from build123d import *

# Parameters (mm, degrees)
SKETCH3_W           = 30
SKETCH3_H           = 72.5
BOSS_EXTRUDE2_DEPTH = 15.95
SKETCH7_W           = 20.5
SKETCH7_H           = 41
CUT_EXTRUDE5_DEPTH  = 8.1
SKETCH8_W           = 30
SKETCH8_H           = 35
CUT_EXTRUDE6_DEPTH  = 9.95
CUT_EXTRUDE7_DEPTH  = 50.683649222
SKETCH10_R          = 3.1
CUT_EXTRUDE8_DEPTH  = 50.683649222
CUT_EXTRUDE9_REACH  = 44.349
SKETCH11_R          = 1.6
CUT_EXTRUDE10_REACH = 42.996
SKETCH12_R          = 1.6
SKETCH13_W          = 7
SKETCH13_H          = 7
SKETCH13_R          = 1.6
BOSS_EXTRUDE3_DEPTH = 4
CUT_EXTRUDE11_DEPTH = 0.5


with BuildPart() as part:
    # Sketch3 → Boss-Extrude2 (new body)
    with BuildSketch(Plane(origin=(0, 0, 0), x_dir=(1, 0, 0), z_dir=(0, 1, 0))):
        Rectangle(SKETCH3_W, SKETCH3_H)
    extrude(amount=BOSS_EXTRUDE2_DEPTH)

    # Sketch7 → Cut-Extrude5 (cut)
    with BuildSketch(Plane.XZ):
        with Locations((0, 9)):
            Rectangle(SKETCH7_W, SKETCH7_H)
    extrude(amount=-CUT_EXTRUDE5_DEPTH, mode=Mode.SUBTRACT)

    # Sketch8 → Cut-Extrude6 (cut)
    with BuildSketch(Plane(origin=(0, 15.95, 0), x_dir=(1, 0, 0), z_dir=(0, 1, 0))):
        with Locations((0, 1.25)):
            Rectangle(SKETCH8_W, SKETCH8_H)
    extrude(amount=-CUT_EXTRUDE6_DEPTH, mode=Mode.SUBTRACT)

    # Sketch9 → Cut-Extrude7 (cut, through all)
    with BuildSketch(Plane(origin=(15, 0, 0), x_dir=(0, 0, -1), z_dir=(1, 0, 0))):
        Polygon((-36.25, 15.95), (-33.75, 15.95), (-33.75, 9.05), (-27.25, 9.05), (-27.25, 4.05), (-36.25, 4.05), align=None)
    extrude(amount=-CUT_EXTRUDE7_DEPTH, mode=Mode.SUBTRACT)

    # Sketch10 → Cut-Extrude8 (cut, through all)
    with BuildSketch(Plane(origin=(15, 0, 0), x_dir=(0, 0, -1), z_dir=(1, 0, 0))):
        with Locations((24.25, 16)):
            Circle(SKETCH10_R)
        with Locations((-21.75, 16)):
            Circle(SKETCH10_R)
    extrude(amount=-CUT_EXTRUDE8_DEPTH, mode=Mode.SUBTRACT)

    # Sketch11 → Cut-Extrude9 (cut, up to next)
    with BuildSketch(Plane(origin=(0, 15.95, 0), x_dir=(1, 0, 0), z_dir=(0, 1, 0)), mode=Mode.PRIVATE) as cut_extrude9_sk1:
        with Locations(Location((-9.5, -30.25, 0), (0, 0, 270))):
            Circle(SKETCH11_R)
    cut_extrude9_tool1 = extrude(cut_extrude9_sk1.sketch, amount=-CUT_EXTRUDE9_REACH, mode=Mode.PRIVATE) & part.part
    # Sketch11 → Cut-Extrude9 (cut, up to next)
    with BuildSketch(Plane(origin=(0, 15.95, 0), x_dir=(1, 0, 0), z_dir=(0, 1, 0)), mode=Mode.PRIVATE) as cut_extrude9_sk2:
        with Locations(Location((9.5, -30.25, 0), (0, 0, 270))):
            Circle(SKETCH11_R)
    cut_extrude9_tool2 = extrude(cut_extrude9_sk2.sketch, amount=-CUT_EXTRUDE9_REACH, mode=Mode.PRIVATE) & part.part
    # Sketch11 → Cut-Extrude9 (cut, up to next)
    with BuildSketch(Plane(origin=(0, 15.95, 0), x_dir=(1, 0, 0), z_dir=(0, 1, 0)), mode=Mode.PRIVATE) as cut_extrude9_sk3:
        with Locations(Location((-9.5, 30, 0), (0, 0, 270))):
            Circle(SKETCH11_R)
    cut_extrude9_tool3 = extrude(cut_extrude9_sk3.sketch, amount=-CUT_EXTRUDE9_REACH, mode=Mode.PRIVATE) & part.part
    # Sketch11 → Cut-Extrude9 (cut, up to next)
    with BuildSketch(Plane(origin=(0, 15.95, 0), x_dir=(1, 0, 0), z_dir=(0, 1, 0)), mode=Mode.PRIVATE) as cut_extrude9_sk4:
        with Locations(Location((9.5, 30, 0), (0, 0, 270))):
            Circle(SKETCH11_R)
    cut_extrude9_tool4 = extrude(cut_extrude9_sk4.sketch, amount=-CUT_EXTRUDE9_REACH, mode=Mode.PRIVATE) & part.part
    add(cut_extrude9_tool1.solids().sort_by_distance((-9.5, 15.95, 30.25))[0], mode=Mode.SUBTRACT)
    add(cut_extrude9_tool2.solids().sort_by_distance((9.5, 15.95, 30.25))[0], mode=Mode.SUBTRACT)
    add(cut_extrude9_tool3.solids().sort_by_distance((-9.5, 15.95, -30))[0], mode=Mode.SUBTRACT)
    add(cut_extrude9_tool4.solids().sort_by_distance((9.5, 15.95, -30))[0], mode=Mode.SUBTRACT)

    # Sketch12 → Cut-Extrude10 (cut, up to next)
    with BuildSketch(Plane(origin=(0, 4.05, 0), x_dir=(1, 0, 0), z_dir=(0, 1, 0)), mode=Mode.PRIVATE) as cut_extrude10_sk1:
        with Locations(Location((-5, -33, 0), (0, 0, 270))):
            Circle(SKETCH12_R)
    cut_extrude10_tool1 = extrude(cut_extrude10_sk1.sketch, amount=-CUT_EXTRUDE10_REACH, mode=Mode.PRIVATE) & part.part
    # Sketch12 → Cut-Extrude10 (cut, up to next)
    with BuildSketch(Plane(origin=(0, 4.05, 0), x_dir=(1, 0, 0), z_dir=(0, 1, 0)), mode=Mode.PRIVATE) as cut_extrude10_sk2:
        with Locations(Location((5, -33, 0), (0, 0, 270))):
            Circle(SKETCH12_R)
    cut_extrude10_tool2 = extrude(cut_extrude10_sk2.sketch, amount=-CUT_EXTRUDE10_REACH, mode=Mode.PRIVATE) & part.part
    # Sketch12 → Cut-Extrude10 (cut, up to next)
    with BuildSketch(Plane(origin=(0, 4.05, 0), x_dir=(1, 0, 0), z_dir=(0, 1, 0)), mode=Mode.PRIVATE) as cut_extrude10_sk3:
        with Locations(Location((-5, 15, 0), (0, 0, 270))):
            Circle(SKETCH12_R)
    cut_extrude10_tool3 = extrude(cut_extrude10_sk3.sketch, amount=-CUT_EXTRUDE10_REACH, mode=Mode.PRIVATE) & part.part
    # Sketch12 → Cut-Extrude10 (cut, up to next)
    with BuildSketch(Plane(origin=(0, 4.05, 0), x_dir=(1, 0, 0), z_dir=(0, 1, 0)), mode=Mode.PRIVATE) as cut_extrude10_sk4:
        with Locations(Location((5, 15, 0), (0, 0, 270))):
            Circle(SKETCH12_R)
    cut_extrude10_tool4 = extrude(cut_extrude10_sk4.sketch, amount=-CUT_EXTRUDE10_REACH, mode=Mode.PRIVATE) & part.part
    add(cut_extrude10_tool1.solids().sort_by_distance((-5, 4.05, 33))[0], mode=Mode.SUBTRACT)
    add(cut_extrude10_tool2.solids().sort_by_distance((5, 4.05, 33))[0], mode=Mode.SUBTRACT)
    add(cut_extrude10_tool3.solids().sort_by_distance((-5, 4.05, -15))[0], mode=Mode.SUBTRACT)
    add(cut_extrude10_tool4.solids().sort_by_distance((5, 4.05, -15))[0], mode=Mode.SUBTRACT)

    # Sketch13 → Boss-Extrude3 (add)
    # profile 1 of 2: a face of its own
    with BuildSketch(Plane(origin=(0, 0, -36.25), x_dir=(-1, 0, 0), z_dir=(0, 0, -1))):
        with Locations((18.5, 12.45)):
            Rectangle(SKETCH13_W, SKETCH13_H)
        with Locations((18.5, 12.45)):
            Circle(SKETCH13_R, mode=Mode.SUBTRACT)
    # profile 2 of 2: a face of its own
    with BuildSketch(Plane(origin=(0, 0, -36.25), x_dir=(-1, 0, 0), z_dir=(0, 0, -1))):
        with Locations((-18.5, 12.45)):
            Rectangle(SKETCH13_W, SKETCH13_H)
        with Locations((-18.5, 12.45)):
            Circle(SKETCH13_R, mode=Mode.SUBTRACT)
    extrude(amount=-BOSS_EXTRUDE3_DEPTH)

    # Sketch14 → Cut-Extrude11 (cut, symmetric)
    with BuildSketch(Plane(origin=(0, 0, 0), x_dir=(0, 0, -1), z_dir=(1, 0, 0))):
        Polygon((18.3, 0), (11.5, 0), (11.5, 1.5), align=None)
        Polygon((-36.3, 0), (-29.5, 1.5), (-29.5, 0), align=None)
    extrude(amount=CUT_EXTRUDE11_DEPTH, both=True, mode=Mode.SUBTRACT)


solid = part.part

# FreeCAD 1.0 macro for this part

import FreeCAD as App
import Part
import Sketcher
from FreeCAD import Vector


def add_polygon(sketch, points):
    """Adds a closed chain of lines whose ends are joined by coincident constraints."""
    first, n = sketch.GeometryCount, len(points)
    for a, b in zip(points, points[1:] + points[:1]):
        sketch.addGeometry(Part.LineSegment(App.Vector(*a, 0), App.Vector(*b, 0)), False)
    for i in range(n):
        sketch.addConstraint(Sketcher.Constraint("Coincident", first + i, 2, first + (i + 1) % n, 1))

doc = App.newDocument("Part")
body = doc.addObject("PartDesign::Body", "Body")

sketch1 = body.newObject("Sketcher::SketchObject", "Sketch")
sketch1.AttachmentSupport = (doc.getObject("XZ_Plane"), [""])
sketch1.MapMode = "FlatFace"
add_polygon(sketch1, [(-15, -36.25), (-15, 36.25), (15, 36.25), (15, -36.25)])
sketch1.addConstraint([
    Sketcher.Constraint("Vertical", 0),
    Sketcher.Constraint("Horizontal", 1),
    Sketcher.Constraint("Vertical", 2),
    Sketcher.Constraint("Horizontal", 3),
    Sketcher.Constraint("Symmetric", 0, 2, 2, 2, -1, 1),
    Sketcher.Constraint("DistanceX", 1, 1, 1, 2, 30.0),
    Sketcher.Constraint("DistanceY", 0, 1, 0, 2, 72.5),
])
pad1 = body.newObject("PartDesign::Pad", "Pad")
pad1.Profile = sketch1
pad1.Length = 15.95
pad1.Reversed = True

sketch2 = body.newObject("Sketcher::SketchObject", "Sketch001")
sketch2.AttachmentSupport = (doc.getObject("XZ_Plane"), [""])
sketch2.MapMode = "FlatFace"
add_polygon(sketch2, [(-10.25, 29.5), (-10.25, -11.5), (10.25, -11.5), (10.25, 29.5)])
sketch2.addConstraint([
    Sketcher.Constraint("Vertical", 0),
    Sketcher.Constraint("Horizontal", 1),
    Sketcher.Constraint("Vertical", 2),
    Sketcher.Constraint("Horizontal", 3),
    Sketcher.Constraint("DistanceY", 0, 2, 0, 1, 41.0),
    Sketcher.Constraint("DistanceX", 1, 1, 1, 2, 20.5),
    Sketcher.Constraint("DistanceY", 0, 2, -1, 1, 11.5),
    Sketcher.Constraint("DistanceX", 0, 2, -1, 1, 10.25),
])
pocket1 = body.newObject("PartDesign::Pocket", "Pocket")
pocket1.Profile = sketch2
pocket1.Length = 8.1

sketch3 = body.newObject("Sketcher::SketchObject", "Sketch002")
sketch3.AttachmentSupport = (doc.getObject("XZ_Plane"), [""])
sketch3.MapMode = "FlatFace"
sketch3.AttachmentOffset = App.Placement(Vector(0, 0, -15.95), App.Rotation())
add_polygon(sketch3, [(-15, -18.75), (-15, 16.25), (15, 16.25), (15, -18.75)])
sketch3.addConstraint([
    Sketcher.Constraint("Vertical", 0),
    Sketcher.Constraint("Horizontal", 1),
    Sketcher.Constraint("Vertical", 2),
    Sketcher.Constraint("Horizontal", 3),
    Sketcher.Constraint("DistanceX", 1, 1, 1, 2, 30.0),
    Sketcher.Constraint("DistanceY", 0, 1, 0, 2, 35.0),
    Sketcher.Constraint("DistanceX", 0, 2, -1, 1, 15.0),
    Sketcher.Constraint("DistanceY", -1, 1, 0, 2, 16.25),
])
pocket2 = body.newObject("PartDesign::Pocket", "Pocket001")
pocket2.Profile = sketch3
pocket2.Length = 9.95
pocket2.Reversed = True

sketch4 = body.newObject("Sketcher::SketchObject", "Sketch003")
sketch4.AttachmentSupport = (doc.getObject("YZ_Plane"), [""])
sketch4.MapMode = "FlatFace"
sketch4.AttachmentOffset = App.Placement(Vector(0, 0, 15), App.Rotation())
add_polygon(sketch4, [(15.95, 33.75), (15.95, 36.25), (4.05, 36.25), (4.05, 27.25), (9.05, 27.25), (9.05, 33.75)])
sketch4.addConstraint([
    Sketcher.Constraint("Vertical", 0),
    Sketcher.Constraint("Horizontal", 1),
    Sketcher.Constraint("Vertical", 2),
    Sketcher.Constraint("Horizontal", 3),
    Sketcher.Constraint("Vertical", 4),
    Sketcher.Constraint("Horizontal", 5),
    Sketcher.Constraint("DistanceX", 3, 1, 3, 2, 5.0),
    Sketcher.Constraint("DistanceY", 2, 2, 2, 1, 9.0),
    Sketcher.Constraint("DistanceX", 1, 2, 1, 1, 11.9),
    Sketcher.Constraint("DistanceY", 0, 1, 0, 2, 2.5),
    Sketcher.Constraint("DistanceX", -1, 1, 0, 2, 15.95),
    Sketcher.Constraint("DistanceY", -1, 1, 0, 2, 36.25),
])
pocket3 = body.newObject("PartDesign::Pocket", "Pocket002")
pocket3.Profile = sketch4
pocket3.Type = "ThroughAll"

sketch5 = body.newObject("Sketcher::SketchObject", "Sketch004")
sketch5.AttachmentSupport = (doc.getObject("YZ_Plane"), [""])
sketch5.MapMode = "FlatFace"
sketch5.AttachmentOffset = App.Placement(Vector(0, 0, 15), App.Rotation())
sketch5.addGeometry([
    Part.Circle(Vector(16, -24.25, 0), Vector(0, 0, 1), 3.1),
    Part.Circle(Vector(16, 21.75, 0), Vector(0, 0, 1), 3.1),
], False)
sketch5.addConstraint([
    Sketcher.Constraint("Equal", 0, 1),
    Sketcher.Constraint("Vertical", 0, 3, 1, 3),
    Sketcher.Constraint("Diameter", 0, 6.2),
    Sketcher.Constraint("DistanceX", -1, 1, 0, 3, 16.0),
    Sketcher.Constraint("DistanceY", 0, 3, 1, 3, 46.0),
    Sketcher.Constraint("DistanceY", 0, 3, -1, 1, 24.25),
])
pocket4 = body.newObject("PartDesign::Pocket", "Pocket003")
pocket4.Profile = sketch5
pocket4.Type = "ThroughAll"

sketch6 = body.newObject("Sketcher::SketchObject", "Sketch005")
sketch6.AttachmentSupport = (doc.getObject("XZ_Plane"), [""])
sketch6.MapMode = "FlatFace"
sketch6.AttachmentOffset = App.Placement(Vector(0, 0, -15.95), App.Rotation())
sketch6.addGeometry(Part.Circle(Vector(-9.5, 30.25, 0), Vector(0, 0, 1), 1.6), False)
sketch6.addConstraint([
    Sketcher.Constraint("Diameter", 0, 3.2),
    Sketcher.Constraint("DistanceX", 0, 3, -1, 1, 9.5),
    Sketcher.Constraint("DistanceY", -1, 1, 0, 3, 30.25),
])
pocket5 = body.newObject("PartDesign::Pocket", "Pocket004")
pocket5.Profile = sketch6
pocket5.Type = "UpToFirst"
pocket5.Reversed = True

sketch7 = body.newObject("Sketcher::SketchObject", "Sketch006")
sketch7.AttachmentSupport = (doc.getObject("XZ_Plane"), [""])
sketch7.MapMode = "FlatFace"
sketch7.AttachmentOffset = App.Placement(Vector(0, 0, -15.95), App.Rotation())
sketch7.addGeometry(Part.Circle(Vector(9.5, 30.25, 0), Vector(0, 0, 1), 1.6), False)
sketch7.addConstraint([
    Sketcher.Constraint("Diameter", 0, 3.2),
    Sketcher.Constraint("DistanceX", -1, 1, 0, 3, 9.5),
    Sketcher.Constraint("DistanceY", -1, 1, 0, 3, 30.25),
])
pocket6 = body.newObject("PartDesign::Pocket", "Pocket005")
pocket6.Profile = sketch7
pocket6.Type = "UpToFirst"
pocket6.Reversed = True

sketch8 = body.newObject("Sketcher::SketchObject", "Sketch007")
sketch8.AttachmentSupport = (doc.getObject("XZ_Plane"), [""])
sketch8.MapMode = "FlatFace"
sketch8.AttachmentOffset = App.Placement(Vector(0, 0, -15.95), App.Rotation())
sketch8.addGeometry(Part.Circle(Vector(-9.5, -30, 0), Vector(0, 0, 1), 1.6), False)
sketch8.addConstraint([
    Sketcher.Constraint("Diameter", 0, 3.2),
    Sketcher.Constraint("DistanceY", 0, 3, -1, 1, 30.0),
    Sketcher.Constraint("DistanceX", 0, 3, -1, 1, 9.5),
])
pocket7 = body.newObject("PartDesign::Pocket", "Pocket006")
pocket7.Profile = sketch8
pocket7.Type = "UpToFirst"
pocket7.Reversed = True

sketch9 = body.newObject("Sketcher::SketchObject", "Sketch008")
sketch9.AttachmentSupport = (doc.getObject("XZ_Plane"), [""])
sketch9.MapMode = "FlatFace"
sketch9.AttachmentOffset = App.Placement(Vector(0, 0, -15.95), App.Rotation())
sketch9.addGeometry(Part.Circle(Vector(9.5, -30, 0), Vector(0, 0, 1), 1.6), False)
sketch9.addConstraint([
    Sketcher.Constraint("Diameter", 0, 3.2),
    Sketcher.Constraint("DistanceY", 0, 3, -1, 1, 30.0),
    Sketcher.Constraint("DistanceX", -1, 1, 0, 3, 9.5),
])
pocket8 = body.newObject("PartDesign::Pocket", "Pocket007")
pocket8.Profile = sketch9
pocket8.Type = "UpToFirst"
pocket8.Reversed = True

sketch10 = body.newObject("Sketcher::SketchObject", "Sketch009")
sketch10.AttachmentSupport = (doc.getObject("XZ_Plane"), [""])
sketch10.MapMode = "FlatFace"
sketch10.AttachmentOffset = App.Placement(Vector(0, 0, -4.05), App.Rotation())
sketch10.addGeometry(Part.Circle(Vector(-5, 33, 0), Vector(0, 0, 1), 1.6), False)
sketch10.addConstraint([
    Sketcher.Constraint("Diameter", 0, 3.2),
    Sketcher.Constraint("DistanceX", 0, 3, -1, 1, 5.0),
    Sketcher.Constraint("DistanceY", -1, 1, 0, 3, 33.0),
])
pocket9 = body.newObject("PartDesign::Pocket", "Pocket008")
pocket9.Profile = sketch10
pocket9.Type = "UpToFirst"
pocket9.Reversed = True

sketch11 = body.newObject("Sketcher::SketchObject", "Sketch010")
sketch11.AttachmentSupport = (doc.getObject("XZ_Plane"), [""])
sketch11.MapMode = "FlatFace"
sketch11.AttachmentOffset = App.Placement(Vector(0, 0, -4.05), App.Rotation())
sketch11.addGeometry(Part.Circle(Vector(5, 33, 0), Vector(0, 0, 1), 1.6), False)
sketch11.addConstraint([
    Sketcher.Constraint("Diameter", 0, 3.2),
    Sketcher.Constraint("DistanceX", -1, 1, 0, 3, 5.0),
    Sketcher.Constraint("DistanceY", -1, 1, 0, 3, 33.0),
])
pocket10 = body.newObject("PartDesign::Pocket", "Pocket009")
pocket10.Profile = sketch11
pocket10.Type = "UpToFirst"
pocket10.Reversed = True

sketch12 = body.newObject("Sketcher::SketchObject", "Sketch011")
sketch12.AttachmentSupport = (doc.getObject("XZ_Plane"), [""])
sketch12.MapMode = "FlatFace"
sketch12.AttachmentOffset = App.Placement(Vector(0, 0, -4.05), App.Rotation())
sketch12.addGeometry(Part.Circle(Vector(-5, -15, 0), Vector(0, 0, 1), 1.6), False)
sketch12.addConstraint([
    Sketcher.Constraint("Diameter", 0, 3.2),
    Sketcher.Constraint("DistanceX", 0, 3, -1, 1, 5.0),
    Sketcher.Constraint("DistanceY", 0, 3, -1, 1, 15.0),
])
pocket11 = body.newObject("PartDesign::Pocket", "Pocket010")
pocket11.Profile = sketch12
pocket11.Type = "UpToFirst"
pocket11.Reversed = True

sketch13 = body.newObject("Sketcher::SketchObject", "Sketch012")
sketch13.AttachmentSupport = (doc.getObject("XZ_Plane"), [""])
sketch13.MapMode = "FlatFace"
sketch13.AttachmentOffset = App.Placement(Vector(0, 0, -4.05), App.Rotation())
sketch13.addGeometry(Part.Circle(Vector(5, -15, 0), Vector(0, 0, 1), 1.6), False)
sketch13.addConstraint([
    Sketcher.Constraint("Diameter", 0, 3.2),
    Sketcher.Constraint("DistanceX", -1, 1, 0, 3, 5.0),
    Sketcher.Constraint("DistanceY", 0, 3, -1, 1, 15.0),
])
pocket12 = body.newObject("PartDesign::Pocket", "Pocket011")
pocket12.Profile = sketch13
pocket12.Type = "UpToFirst"
pocket12.Reversed = True

sketch14 = body.newObject("Sketcher::SketchObject", "Sketch013")
sketch14.AttachmentSupport = (doc.getObject("XY_Plane"), [""])
sketch14.MapMode = "FlatFace"
sketch14.AttachmentOffset = App.Placement(Vector(0, 0, -36.25), App.Rotation())
add_polygon(sketch14, [(-15, 15.95), (-15, 8.95), (-22, 8.95), (-22, 15.95)])
sketch14.addGeometry(Part.Circle(Vector(-18.5, 12.45, 0), Vector(0, 0, 1), 1.6), False)
add_polygon(sketch14, [(22, 15.95), (22, 8.95), (15, 8.95), (15, 15.95)])
sketch14.addGeometry(Part.Circle(Vector(18.5, 12.45, 0), Vector(0, 0, 1), 1.6), False)
sketch14.addConstraint([
    Sketcher.Constraint("Vertical", 0),
    Sketcher.Constraint("Horizontal", 1),
    Sketcher.Constraint("Vertical", 2),
    Sketcher.Constraint("Horizontal", 3),
    Sketcher.Constraint("Vertical", 5),
    Sketcher.Constraint("Horizontal", 6),
    Sketcher.Constraint("Vertical", 7),
    Sketcher.Constraint("Horizontal", 8),
    Sketcher.Constraint("Equal", 4, 9),
    Sketcher.Constraint("Symmetric", 4, 3, 9, 3, -2),
    Sketcher.Constraint("Symmetric", 1, 2, 5, 2, -2),
    Sketcher.Constraint("Symmetric", 3, 2, 7, 2, -2),
    Sketcher.Constraint("Equal", 8, 0),
    Sketcher.Constraint("Diameter", 4, 3.2),
    Sketcher.Constraint("DistanceX", 1, 2, 1, 1, 7.0),
    Sketcher.Constraint("DistanceX", 0, 2, -1, 1, 15.0),
    Sketcher.Constraint("DistanceX", 4, 3, 9, 3, 37.0),
    Sketcher.Constraint("DistanceY", 0, 2, 4, 3, 3.5),
    Sketcher.Constraint("DistanceY", -1, 1, 4, 3, 12.45),
])
pad2 = body.newObject("PartDesign::Pad", "Pad001")
pad2.Profile = sketch14
pad2.Length = 4

sketch15 = body.newObject("Sketcher::SketchObject", "Sketch014")
sketch15.AttachmentSupport = (doc.getObject("YZ_Plane"), [""])
sketch15.MapMode = "FlatFace"
add_polygon(sketch15, [(0, -11.5), (0, -18.3), (1.5, -11.5)])
add_polygon(sketch15, [(1.5, 29.5), (0, 36.3), (0, 29.5)])
sketch15.addConstraint([
    Sketcher.Constraint("Vertical", 0),
    Sketcher.Constraint("Horizontal", 2),
    Sketcher.Constraint("Vertical", 4),
    Sketcher.Constraint("Horizontal", 5),
    Sketcher.Constraint("PointOnObject", 0, 2, -2),
    Sketcher.Constraint("PointOnObject", 3, 2, -2),
    Sketcher.Constraint("Vertical", 1, 2, 5, 2),
    Sketcher.Constraint("Equal", 0, 4),
    Sketcher.Constraint("DistanceX", 2, 2, 2, 1, 1.5),
    Sketcher.Constraint("DistanceY", 0, 2, 0, 1, 6.8),
    Sketcher.Constraint("DistanceY", 2, 2, 4, 2, 41.0),
    Sketcher.Constraint("DistanceY", 0, 2, -1, 1, 18.3),
])
pocket13 = body.newObject("PartDesign::Pocket", "Pocket012")
pocket13.Profile = sketch15
pocket13.Length = 1
pocket13.Midplane = True

doc.recompute()
